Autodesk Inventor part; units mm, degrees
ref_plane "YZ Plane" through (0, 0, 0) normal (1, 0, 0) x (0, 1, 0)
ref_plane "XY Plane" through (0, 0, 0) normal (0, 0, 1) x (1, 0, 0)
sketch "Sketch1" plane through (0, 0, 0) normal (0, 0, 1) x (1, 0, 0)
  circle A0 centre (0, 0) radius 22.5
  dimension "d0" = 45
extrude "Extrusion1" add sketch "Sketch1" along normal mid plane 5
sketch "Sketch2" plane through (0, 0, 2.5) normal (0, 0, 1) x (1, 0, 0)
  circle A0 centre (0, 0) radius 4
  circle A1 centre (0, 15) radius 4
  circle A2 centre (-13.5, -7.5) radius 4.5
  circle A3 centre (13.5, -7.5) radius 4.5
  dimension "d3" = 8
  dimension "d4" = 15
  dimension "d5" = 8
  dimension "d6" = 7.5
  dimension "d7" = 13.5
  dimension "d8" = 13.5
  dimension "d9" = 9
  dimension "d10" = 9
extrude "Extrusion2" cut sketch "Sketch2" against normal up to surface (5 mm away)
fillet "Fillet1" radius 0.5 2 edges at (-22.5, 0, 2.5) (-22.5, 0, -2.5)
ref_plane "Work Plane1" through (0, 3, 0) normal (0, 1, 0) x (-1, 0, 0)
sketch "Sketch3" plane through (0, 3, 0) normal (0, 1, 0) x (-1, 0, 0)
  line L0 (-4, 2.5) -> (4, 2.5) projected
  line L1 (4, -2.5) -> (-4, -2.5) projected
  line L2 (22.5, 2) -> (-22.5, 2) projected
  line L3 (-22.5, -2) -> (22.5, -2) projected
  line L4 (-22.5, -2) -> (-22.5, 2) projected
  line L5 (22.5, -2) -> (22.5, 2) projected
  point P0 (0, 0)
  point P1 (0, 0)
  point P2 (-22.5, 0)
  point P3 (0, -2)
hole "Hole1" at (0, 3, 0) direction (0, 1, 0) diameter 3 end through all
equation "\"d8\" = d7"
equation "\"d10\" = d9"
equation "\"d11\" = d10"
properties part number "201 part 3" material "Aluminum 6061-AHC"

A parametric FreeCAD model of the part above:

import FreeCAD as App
import Part
import Sketcher
Q = App.Units.Quantity


def edges_at(feature, points):
    """Names of the edges that pass closest to the given points."""
    edges = feature.Shape.Edges
    near = lambda p: min(range(len(edges)), key=lambda i: edges[i].distToShape(Part.Vertex(*p))[0])
    return sorted({f"Edge{near(p) + 1}" for p in points})

doc = App.newDocument("Part")
params = doc.addObject("Spreadsheet::Sheet", "Params")
for row, (alias, value) in enumerate([
    ("sketch1_diameter", "45 mm"),
    ("pad1_length", "5 mm"),
    ("sketch2_diameter", "8 mm"),
    ("sketch2_diameter2", "9 mm"),
    ("pocket1_length", "5 mm"),
    ("fillet_radius", "0.5 mm"),
    ("sketch3_diameter", "3 mm"),
    ("hole_diameter", "3 mm"),
], start=1):
    params.set(f"A{row}", alias)
    params.set(f"B{row}", "=" + value)
    params.setAlias(f"B{row}", alias)

body = doc.addObject("PartDesign::Body", "Body")

# Sketch on XY plane
sketch1 = body.newObject("Sketcher::SketchObject", "Sketch")
sketch1.AttachmentSupport = (doc.getObject("XY_Plane"), [""])
sketch1.MapMode = "FlatFace"
sketch1.addGeometry(Part.Circle(App.Vector(0, 0, 0), App.Vector(0, 0, 1), 22.5), False)
sketch1.addConstraint([
    Sketcher.Constraint("Coincident", 0, 3, -1, 1),
    Sketcher.Constraint("Diameter", 0, Q("45 mm")),
])
sketch1.setExpression("Constraints[1]", "Params.sketch1_diameter")
pad1 = body.newObject("PartDesign::Pad", "Pad")
pad1.Profile = sketch1
pad1.setExpression("Length", "Params.pad1_length")
pad1.Midplane = True

# Sketch on XY plane
sketch2 = body.newObject("Sketcher::SketchObject", "Sketch001")
sketch2.AttachmentSupport = (doc.getObject("XY_Plane"), [""])
sketch2.MapMode = "FlatFace"
sketch2.AttachmentOffset = App.Placement(App.Vector(0, 0, 2.5), App.Rotation())
sketch2.addGeometry([
    Part.Circle(App.Vector(0, 0, 0), App.Vector(0, 0, 1), 4),
    Part.Circle(App.Vector(0, 15, 0), App.Vector(0, 0, 1), 4),
    Part.Circle(App.Vector(-13.5, -7.5, 0), App.Vector(0, 0, 1), 4.5),
    Part.Circle(App.Vector(13.5, -7.5, 0), App.Vector(0, 0, 1), 4.5),
], False)
sketch2.addConstraint([
    Sketcher.Constraint("Coincident", 0, 3, -1, 1),
    Sketcher.Constraint("Equal", 0, 1),
    Sketcher.Constraint("Equal", 2, 3),
    Sketcher.Constraint("Symmetric", 2, 3, 3, 3, -2),
    Sketcher.Constraint("PointOnObject", 1, 3, -2),
    Sketcher.Constraint("Diameter", 0, Q("8 mm")),
    Sketcher.Constraint("Diameter", 2, Q("9 mm")),
    Sketcher.Constraint("DistanceY", -1, 1, 1, 3, Q("15 mm")),
    Sketcher.Constraint("DistanceX", 2, 3, -1, 1, Q("13.5 mm")),
    Sketcher.Constraint("DistanceY", 2, 3, -1, 1, Q("7.5 mm")),
])
sketch2.setExpression("Constraints[5]", "Params.sketch2_diameter")
sketch2.setExpression("Constraints[6]", "Params.sketch2_diameter2")
pocket1 = body.newObject("PartDesign::Pocket", "Pocket")
pocket1.Profile = sketch2
pocket1.setExpression("Length", "Params.pocket1_length")
doc.recompute()

fillet = body.newObject("PartDesign::Fillet", "Fillet")
fillet.Base = (pocket1, edges_at(pocket1, [(-22.5, 0, 2.5), (-22.5, 0, -2.5)]))
fillet.setExpression("Radius", "Params.fillet_radius")

# Sketch on XZ plane
sketch3 = body.newObject("Sketcher::SketchObject", "Sketch002")
sketch3.AttachmentSupport = (doc.getObject("XZ_Plane"), [""])
sketch3.MapMode = "FlatFace"
sketch3.AttachmentOffset = App.Placement(App.Vector(0, 0, -3), App.Rotation())
sketch3.addGeometry(Part.Circle(App.Vector(0, 0, 0), App.Vector(0, 0, 1), 1.5), False)
sketch3.addConstraint([
    Sketcher.Constraint("Coincident", 0, 3, -1, 1),
    Sketcher.Constraint("Diameter", 0, Q("3 mm")),
])
sketch3.setExpression("Constraints[1]", "Params.sketch3_diameter")
doc.recompute()
hole = body.newObject("PartDesign::Hole", "Hole")
hole.Profile = sketch3
hole.ThreadType = "None"
hole.setExpression("Diameter", "Params.hole_diameter")
hole.DepthType = "ThroughAll"

doc.recompute()
